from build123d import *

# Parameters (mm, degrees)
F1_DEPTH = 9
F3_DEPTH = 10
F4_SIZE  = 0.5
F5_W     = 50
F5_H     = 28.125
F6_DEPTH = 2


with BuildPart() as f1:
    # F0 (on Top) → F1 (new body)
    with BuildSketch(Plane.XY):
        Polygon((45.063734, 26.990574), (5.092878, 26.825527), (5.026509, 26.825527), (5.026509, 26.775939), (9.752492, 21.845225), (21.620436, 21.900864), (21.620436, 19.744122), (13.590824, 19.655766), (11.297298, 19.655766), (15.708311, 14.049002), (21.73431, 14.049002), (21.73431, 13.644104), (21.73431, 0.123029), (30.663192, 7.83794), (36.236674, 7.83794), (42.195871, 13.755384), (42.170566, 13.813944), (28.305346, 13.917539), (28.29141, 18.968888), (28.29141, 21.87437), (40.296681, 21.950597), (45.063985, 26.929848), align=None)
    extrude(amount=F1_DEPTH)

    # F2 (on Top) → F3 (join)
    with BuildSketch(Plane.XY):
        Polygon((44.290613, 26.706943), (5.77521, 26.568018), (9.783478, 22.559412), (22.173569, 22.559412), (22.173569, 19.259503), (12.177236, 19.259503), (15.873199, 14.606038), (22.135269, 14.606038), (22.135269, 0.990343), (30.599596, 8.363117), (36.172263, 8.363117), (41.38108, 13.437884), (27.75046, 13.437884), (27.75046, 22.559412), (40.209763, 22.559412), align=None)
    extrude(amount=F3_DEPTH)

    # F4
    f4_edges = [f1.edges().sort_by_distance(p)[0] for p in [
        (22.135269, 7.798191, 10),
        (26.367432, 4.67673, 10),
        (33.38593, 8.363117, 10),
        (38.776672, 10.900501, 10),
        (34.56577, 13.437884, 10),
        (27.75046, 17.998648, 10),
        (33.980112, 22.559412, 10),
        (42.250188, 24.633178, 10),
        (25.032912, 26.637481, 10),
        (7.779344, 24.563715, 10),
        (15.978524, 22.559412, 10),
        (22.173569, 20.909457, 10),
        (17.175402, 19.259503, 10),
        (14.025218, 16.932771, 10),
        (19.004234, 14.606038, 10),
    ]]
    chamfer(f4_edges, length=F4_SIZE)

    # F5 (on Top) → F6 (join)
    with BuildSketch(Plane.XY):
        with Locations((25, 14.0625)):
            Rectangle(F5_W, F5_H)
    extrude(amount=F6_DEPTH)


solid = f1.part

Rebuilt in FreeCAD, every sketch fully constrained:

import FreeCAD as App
import Part
import Sketcher
from FreeCAD import Vector
Q = App.Units.Quantity


def edges_at(feature, points):
    """Names of the edges that pass closest to the given points."""
    edges = feature.Shape.Edges
    near = lambda p: min(range(len(edges)), key=lambda i: edges[i].distToShape(Part.Vertex(*p))[0])
    return sorted({f"Edge{near(p) + 1}" for p in points})

doc = App.newDocument("Part")
body = doc.addObject("PartDesign::Body", "Body")

# Sketch on XY plane
sketch1 = doc.addObject("Sketcher::SketchObject", "Sketch")
body.addObject(sketch1)
sketch1.AttachmentSupport = (doc.XY_Plane, [""])
sketch1.MapMode = "FlatFace"
sketch1.addGeometry([
    Part.LineSegment(Vector(45.063734, 26.990574, 0), Vector(5.092878, 26.825527, 0)),  # 0
    Part.LineSegment(Vector(5.092878, 26.825527, 0), Vector(5.026509, 26.825527, 0)),  # 1
    Part.LineSegment(Vector(5.026509, 26.825527, 0), Vector(5.026509, 26.775939, 0)),  # 2
    Part.LineSegment(Vector(5.026509, 26.775939, 0), Vector(9.752492, 21.845225, 0)),  # 3
    Part.LineSegment(Vector(9.752492, 21.845225, 0), Vector(21.620436, 21.900864, 0)),  # 4
    Part.LineSegment(Vector(21.620436, 21.900864, 0), Vector(21.620436, 19.744122, 0)),  # 5
    Part.LineSegment(Vector(21.620436, 19.744122, 0), Vector(13.590824, 19.655766, 0)),  # 6
    Part.LineSegment(Vector(13.590824, 19.655766, 0), Vector(11.297298, 19.655766, 0)),  # 7
    Part.LineSegment(Vector(11.297298, 19.655766, 0), Vector(15.708311, 14.049002, 0)),  # 8
    Part.LineSegment(Vector(15.708311, 14.049002, 0), Vector(21.73431, 14.049002, 0)),  # 9
    Part.LineSegment(Vector(21.73431, 14.049002, 0), Vector(21.73431, 0.123029, 0)),  # 10
    Part.LineSegment(Vector(21.73431, 0.123029, 0), Vector(30.663192, 7.83794, 0)),  # 11
    Part.LineSegment(Vector(30.663192, 7.83794, 0), Vector(36.236674, 7.83794, 0)),  # 12
    Part.LineSegment(Vector(36.236674, 7.83794, 0), Vector(42.195871, 13.755384, 0)),  # 13
    Part.LineSegment(Vector(42.195871, 13.755384, 0), Vector(42.170566, 13.813944, 0)),  # 14
    Part.LineSegment(Vector(42.170566, 13.813944, 0), Vector(28.305346, 13.917539, 0)),  # 15
    Part.LineSegment(Vector(28.305346, 13.917539, 0), Vector(28.29141, 18.968888, 0)),  # 16
    Part.LineSegment(Vector(28.29141, 18.968888, 0), Vector(28.29141, 21.87437, 0)),  # 17
    Part.LineSegment(Vector(28.29141, 21.87437, 0), Vector(40.296681, 21.950597, 0)),  # 18
    Part.LineSegment(Vector(40.296681, 21.950597, 0), Vector(45.063985, 26.929848, 0)),  # 19
    Part.LineSegment(Vector(45.063985, 26.929848, 0), Vector(45.063734, 26.990574, 0)),  # 20
], False)
sketch1.addConstraint([
    Sketcher.Constraint("Coincident", 0, 2, 1, 1),
    Sketcher.Constraint("Coincident", 1, 2, 2, 1),
    Sketcher.Constraint("Coincident", 2, 2, 3, 1),
    Sketcher.Constraint("Coincident", 3, 2, 4, 1),
    Sketcher.Constraint("Coincident", 4, 2, 5, 1),
    Sketcher.Constraint("Coincident", 5, 2, 6, 1),
    Sketcher.Constraint("Coincident", 6, 2, 7, 1),
    Sketcher.Constraint("Coincident", 7, 2, 8, 1),
    Sketcher.Constraint("Coincident", 8, 2, 9, 1),
    Sketcher.Constraint("Coincident", 9, 2, 10, 1),
    Sketcher.Constraint("Coincident", 10, 2, 11, 1),
    Sketcher.Constraint("Coincident", 11, 2, 12, 1),
    Sketcher.Constraint("Coincident", 12, 2, 13, 1),
    Sketcher.Constraint("Coincident", 13, 2, 14, 1),
    Sketcher.Constraint("Coincident", 14, 2, 15, 1),
    Sketcher.Constraint("Coincident", 15, 2, 16, 1),
    Sketcher.Constraint("Coincident", 16, 2, 17, 1),
    Sketcher.Constraint("Coincident", 17, 2, 18, 1),
    Sketcher.Constraint("Coincident", 18, 2, 19, 1),
    Sketcher.Constraint("Coincident", 19, 2, 20, 1),
    Sketcher.Constraint("Coincident", 20, 2, 0, 1),
    Sketcher.Constraint("Horizontal", 1),
    Sketcher.Constraint("Vertical", 2),
    Sketcher.Constraint("Vertical", 5),
    Sketcher.Constraint("Horizontal", 7),
    Sketcher.Constraint("Horizontal", 9),
    Sketcher.Constraint("Vertical", 10),
    Sketcher.Constraint("Horizontal", 12),
    Sketcher.Constraint("Vertical", 17),
    Sketcher.Constraint("DistanceX", 9, 1, 9, 2, Q("6.025999 mm")),
    Sketcher.Constraint("Distance", 6, Q("8.030098 mm")),
    Sketcher.Constraint("DistanceX", 1, 2, 1, 1, Q("0.066369 mm")),
    Sketcher.Constraint("DistanceY", 5, 2, 5, 1, Q("2.156742 mm")),
    Sketcher.Constraint("DistanceY", 17, 1, 17, 2, Q("2.905482 mm")),
    Sketcher.Constraint("DistanceY", 11, 2, 15, 2, Q("6.079599 mm")),
    Sketcher.Constraint("DistanceX", 9, 2, 16, 2, Q("6.5571 mm")),
    Sketcher.Constraint("Distance", 3, Q("6.82985 mm")),
    Sketcher.Constraint("Distance", 8, Q("7.133922 mm")),
    Sketcher.Constraint("Distance", 16, Q("5.051368 mm")),
    Sketcher.Constraint("DistanceX", 7, 2, 7, 1, Q("2.293526 mm")),
    Sketcher.Constraint("DistanceX", 12, 1, 12, 2, Q("5.573482 mm")),
    Sketcher.Constraint("DistanceY", 2, 2, 2, 1, Q("0.049588 mm")),
    Sketcher.Constraint("DistanceY", 10, 2, 10, 1, Q("13.925973 mm")),
    Sketcher.Constraint("DistanceX", -1, 1, 1, 2, Q("5.026509 mm")),
    Sketcher.Constraint("DistanceY", -1, 1, 2, 2, Q("26.775939 mm")),
    Sketcher.Constraint("DistanceX", -1, 1, 8, 2, Q("15.708311 mm")),
    Sketcher.Constraint("DistanceY", -1, 1, 10, 2, Q("0.123029 mm")),
    Sketcher.Constraint("DistanceX", -1, 1, 11, 2, Q("30.663192 mm")),
    Sketcher.Constraint("DistanceY", -1, 1, 11, 2, Q("7.83794 mm")),
    Sketcher.Constraint("DistanceX", -1, 1, 13, 2, Q("42.195871 mm")),
    Sketcher.Constraint("DistanceX", -1, 1, 18, 2, Q("40.296681 mm")),
    Sketcher.Constraint("DistanceY", -1, 1, 19, 2, Q("26.929848 mm")),
    Sketcher.Constraint("DistanceY", 3, 2, 4, 2, Q("0.055639 mm")),
    Sketcher.Constraint("DistanceX", 0, 2, 4, 2, Q("16.527558 mm")),
    Sketcher.Constraint("DistanceX", 3, 2, 6, 2, Q("3.838332 mm")),
    Sketcher.Constraint("DistanceY", 13, 2, 9, 2, Q("0.293618 mm")),
    Sketcher.Constraint("DistanceY", 13, 2, 14, 2, Q("0.05856 mm")),
    Sketcher.Constraint("DistanceX", 5, 2, 14, 2, Q("20.55013 mm")),
    Sketcher.Constraint("DistanceX", 5, 2, 15, 2, Q("6.68491 mm")),
    Sketcher.Constraint("DistanceY", 16, 2, 18, 2, Q("2.981709 mm")),
    Sketcher.Constraint("DistanceX", 14, 2, 19, 2, Q("2.893419 mm")),
    Sketcher.Constraint("DistanceX", 20, 2, 19, 2, Q("0.000251 mm")),
    Sketcher.Constraint("DistanceY", 14, 2, 20, 2, Q("13.17663 mm")),
])
pad1 = doc.addObject("PartDesign::Pad", "Pad")
body.addObject(pad1)
pad1.Profile = sketch1
pad1.Length = 9

# Sketch on XY plane
sketch2 = doc.addObject("Sketcher::SketchObject", "Sketch001")
body.addObject(sketch2)
sketch2.AttachmentSupport = (doc.XY_Plane, [""])
sketch2.MapMode = "FlatFace"
sketch2.addGeometry([
    Part.LineSegment(Vector(44.290613, 26.706943, 0), Vector(5.77521, 26.568018, 0)),  # 0
    Part.LineSegment(Vector(5.77521, 26.568018, 0), Vector(9.783478, 22.559412, 0)),  # 1
    Part.LineSegment(Vector(9.783478, 22.559412, 0), Vector(22.173569, 22.559412, 0)),  # 2
    Part.LineSegment(Vector(22.173569, 22.559412, 0), Vector(22.173569, 19.259503, 0)),  # 3
    Part.LineSegment(Vector(22.173569, 19.259503, 0), Vector(12.177236, 19.259503, 0)),  # 4
    Part.LineSegment(Vector(12.177236, 19.259503, 0), Vector(15.873199, 14.606038, 0)),  # 5
    Part.LineSegment(Vector(15.873199, 14.606038, 0), Vector(22.135269, 14.606038, 0)),  # 6
    Part.LineSegment(Vector(22.135269, 14.606038, 0), Vector(22.135269, 0.990343, 0)),  # 7
    Part.LineSegment(Vector(22.135269, 0.990343, 0), Vector(30.599596, 8.363117, 0)),  # 8
    Part.LineSegment(Vector(30.599596, 8.363117, 0), Vector(36.172263, 8.363117, 0)),  # 9
    Part.LineSegment(Vector(36.172263, 8.363117, 0), Vector(41.38108, 13.437884, 0)),  # 10
    Part.LineSegment(Vector(41.38108, 13.437884, 0), Vector(27.75046, 13.437884, 0)),  # 11
    Part.LineSegment(Vector(27.75046, 13.437884, 0), Vector(27.75046, 22.559412, 0)),  # 12
    Part.LineSegment(Vector(27.75046, 22.559412, 0), Vector(40.209763, 22.559412, 0)),  # 13
    Part.LineSegment(Vector(40.209763, 22.559412, 0), Vector(44.290613, 26.706943, 0)),  # 14
], False)
sketch2.addConstraint([
    Sketcher.Constraint("Coincident", 0, 2, 1, 1),
    Sketcher.Constraint("Coincident", 1, 2, 2, 1),
    Sketcher.Constraint("Coincident", 2, 2, 3, 1),
    Sketcher.Constraint("Coincident", 3, 2, 4, 1),
    Sketcher.Constraint("Coincident", 4, 2, 5, 1),
    Sketcher.Constraint("Coincident", 5, 2, 6, 1),
    Sketcher.Constraint("Coincident", 6, 2, 7, 1),
    Sketcher.Constraint("Coincident", 7, 2, 8, 1),
    Sketcher.Constraint("Coincident", 8, 2, 9, 1),
    Sketcher.Constraint("Coincident", 9, 2, 10, 1),
    Sketcher.Constraint("Coincident", 10, 2, 11, 1),
    Sketcher.Constraint("Coincident", 11, 2, 12, 1),
    Sketcher.Constraint("Coincident", 12, 2, 13, 1),
    Sketcher.Constraint("Coincident", 13, 2, 14, 1),
    Sketcher.Constraint("Coincident", 14, 2, 0, 1),
    Sketcher.Constraint("Horizontal", 2),
    Sketcher.Constraint("Vertical", 3),
    Sketcher.Constraint("Horizontal", 4),
    Sketcher.Constraint("Horizontal", 6),
    Sketcher.Constraint("Vertical", 7),
    Sketcher.Constraint("Horizontal", 9),
    Sketcher.Constraint("Horizontal", 11),
    Sketcher.Constraint("Vertical", 12),
    Sketcher.Constraint("Horizontal", 13),
    Sketcher.Constraint("Horizontal", 2, 2, 12, 2),
    Sketcher.Constraint("DistanceX", 2, 1, 2, 2, Q("12.390091 mm")),
    Sketcher.Constraint("DistanceX", 6, 1, 6, 2, Q("6.26207 mm")),
    Sketcher.Constraint("DistanceX", 11, 2, 11, 1, Q("13.63062 mm")),
    Sketcher.Constraint("DistanceY", 3, 2, 3, 1, Q("3.299909 mm")),
    Sketcher.Constraint("DistanceX", -1, 1, 5, 2, Q("15.873199 mm")),
    Sketcher.Constraint("DistanceX", 6, 2, 3, 2, Q("0.0383 mm")),
    Sketcher.Constraint("DistanceX", 9, 2, 13, 2, Q("4.0375 mm")),
    Sketcher.Constraint("Distance", 8, Q("11.225089 mm")),
    Sketcher.Constraint("Distance", 10, Q("7.27221 mm")),
    Sketcher.Constraint("DistanceX", 4, 2, 4, 1, Q("9.996333 mm")),
    Sketcher.Constraint("DistanceX", 9, 1, 9, 2, Q("5.572667 mm")),
    Sketcher.Constraint("DistanceX", 13, 1, 13, 2, Q("12.459303 mm")),
    Sketcher.Constraint("DistanceY", 7, 2, 7, 1, Q("13.615695 mm")),
    Sketcher.Constraint("DistanceY", 12, 1, 12, 2, Q("9.121528 mm")),
    Sketcher.Constraint("DistanceX", -1, 1, 0, 2, Q("5.77521 mm")),
    Sketcher.Constraint("DistanceY", -1, 1, 1, 2, Q("22.559412 mm")),
    Sketcher.Constraint("DistanceX", -1, 1, 10, 2, Q("41.38108 mm")),
    Sketcher.Constraint("DistanceY", 5, 2, 0, 2, Q("11.96198 mm")),
    Sketcher.Constraint("DistanceX", 13, 2, 14, 2, Q("4.08085 mm")),
    Sketcher.Constraint("DistanceY", 13, 2, 14, 2, Q("4.147531 mm")),
])
pad2 = doc.addObject("PartDesign::Pad", "Pad001")
body.addObject(pad2)
pad2.Profile = sketch2
pad2.Length = 10
doc.recompute()

chamfer = doc.addObject("PartDesign::Chamfer", "Chamfer")
body.addObject(chamfer)
chamfer.Base = (pad2, edges_at(pad2, [
    (22.135, 7.798, 10),
    (26.367, 4.677, 10),
    (33.386, 8.363, 10),
    (38.777, 10.901, 10),
    (34.566, 13.438, 10),
    (27.75, 17.999, 10),
    (33.98, 22.559, 10),
    (42.25, 24.633, 10),
    (25.033, 26.637, 10),
    (7.779, 24.564, 10),
    (15.979, 22.559, 10),
    (22.174, 20.909, 10),
    (17.175, 19.26, 10),
    (14.025, 16.933, 10),
    (19.004, 14.606, 10),
]))
chamfer.Size = 0.5

# Sketch on XY plane
sketch3 = doc.addObject("Sketcher::SketchObject", "Sketch002")
body.addObject(sketch3)
sketch3.AttachmentSupport = (doc.XY_Plane, [""])
sketch3.MapMode = "FlatFace"
sketch3.addGeometry([
    Part.LineSegment(Vector(0, 28.125, 0), Vector(0, 0, 0)),
    Part.LineSegment(Vector(0, 0, 0), Vector(50, 0, 0)),
    Part.LineSegment(Vector(50, 0, 0), Vector(50, 28.125, 0)),
    Part.LineSegment(Vector(50, 28.125, 0), Vector(0, 28.125, 0)),
], False)
sketch3.addConstraint([
    Sketcher.Constraint("Coincident", 0, 2, 1, 1),
    Sketcher.Constraint("Coincident", 1, 2, 2, 1),
    Sketcher.Constraint("Coincident", 2, 2, 3, 1),
    Sketcher.Constraint("Coincident", 3, 2, 0, 1),
    Sketcher.Constraint("Vertical", 0),
    Sketcher.Constraint("Horizontal", 1),
    Sketcher.Constraint("Vertical", 2),
    Sketcher.Constraint("Horizontal", 3),
    Sketcher.Constraint("Coincident", 0, 2, -1, 1),
    Sketcher.Constraint("DistanceX", 1, 1, 1, 2, Q("50 mm")),
    Sketcher.Constraint("DistanceY", 0, 2, 0, 1, Q("28.125 mm")),
])
pad3 = doc.addObject("PartDesign::Pad", "Pad002")
body.addObject(pad3)
pad3.Profile = sketch3
pad3.Length = 2

doc.recompute()
